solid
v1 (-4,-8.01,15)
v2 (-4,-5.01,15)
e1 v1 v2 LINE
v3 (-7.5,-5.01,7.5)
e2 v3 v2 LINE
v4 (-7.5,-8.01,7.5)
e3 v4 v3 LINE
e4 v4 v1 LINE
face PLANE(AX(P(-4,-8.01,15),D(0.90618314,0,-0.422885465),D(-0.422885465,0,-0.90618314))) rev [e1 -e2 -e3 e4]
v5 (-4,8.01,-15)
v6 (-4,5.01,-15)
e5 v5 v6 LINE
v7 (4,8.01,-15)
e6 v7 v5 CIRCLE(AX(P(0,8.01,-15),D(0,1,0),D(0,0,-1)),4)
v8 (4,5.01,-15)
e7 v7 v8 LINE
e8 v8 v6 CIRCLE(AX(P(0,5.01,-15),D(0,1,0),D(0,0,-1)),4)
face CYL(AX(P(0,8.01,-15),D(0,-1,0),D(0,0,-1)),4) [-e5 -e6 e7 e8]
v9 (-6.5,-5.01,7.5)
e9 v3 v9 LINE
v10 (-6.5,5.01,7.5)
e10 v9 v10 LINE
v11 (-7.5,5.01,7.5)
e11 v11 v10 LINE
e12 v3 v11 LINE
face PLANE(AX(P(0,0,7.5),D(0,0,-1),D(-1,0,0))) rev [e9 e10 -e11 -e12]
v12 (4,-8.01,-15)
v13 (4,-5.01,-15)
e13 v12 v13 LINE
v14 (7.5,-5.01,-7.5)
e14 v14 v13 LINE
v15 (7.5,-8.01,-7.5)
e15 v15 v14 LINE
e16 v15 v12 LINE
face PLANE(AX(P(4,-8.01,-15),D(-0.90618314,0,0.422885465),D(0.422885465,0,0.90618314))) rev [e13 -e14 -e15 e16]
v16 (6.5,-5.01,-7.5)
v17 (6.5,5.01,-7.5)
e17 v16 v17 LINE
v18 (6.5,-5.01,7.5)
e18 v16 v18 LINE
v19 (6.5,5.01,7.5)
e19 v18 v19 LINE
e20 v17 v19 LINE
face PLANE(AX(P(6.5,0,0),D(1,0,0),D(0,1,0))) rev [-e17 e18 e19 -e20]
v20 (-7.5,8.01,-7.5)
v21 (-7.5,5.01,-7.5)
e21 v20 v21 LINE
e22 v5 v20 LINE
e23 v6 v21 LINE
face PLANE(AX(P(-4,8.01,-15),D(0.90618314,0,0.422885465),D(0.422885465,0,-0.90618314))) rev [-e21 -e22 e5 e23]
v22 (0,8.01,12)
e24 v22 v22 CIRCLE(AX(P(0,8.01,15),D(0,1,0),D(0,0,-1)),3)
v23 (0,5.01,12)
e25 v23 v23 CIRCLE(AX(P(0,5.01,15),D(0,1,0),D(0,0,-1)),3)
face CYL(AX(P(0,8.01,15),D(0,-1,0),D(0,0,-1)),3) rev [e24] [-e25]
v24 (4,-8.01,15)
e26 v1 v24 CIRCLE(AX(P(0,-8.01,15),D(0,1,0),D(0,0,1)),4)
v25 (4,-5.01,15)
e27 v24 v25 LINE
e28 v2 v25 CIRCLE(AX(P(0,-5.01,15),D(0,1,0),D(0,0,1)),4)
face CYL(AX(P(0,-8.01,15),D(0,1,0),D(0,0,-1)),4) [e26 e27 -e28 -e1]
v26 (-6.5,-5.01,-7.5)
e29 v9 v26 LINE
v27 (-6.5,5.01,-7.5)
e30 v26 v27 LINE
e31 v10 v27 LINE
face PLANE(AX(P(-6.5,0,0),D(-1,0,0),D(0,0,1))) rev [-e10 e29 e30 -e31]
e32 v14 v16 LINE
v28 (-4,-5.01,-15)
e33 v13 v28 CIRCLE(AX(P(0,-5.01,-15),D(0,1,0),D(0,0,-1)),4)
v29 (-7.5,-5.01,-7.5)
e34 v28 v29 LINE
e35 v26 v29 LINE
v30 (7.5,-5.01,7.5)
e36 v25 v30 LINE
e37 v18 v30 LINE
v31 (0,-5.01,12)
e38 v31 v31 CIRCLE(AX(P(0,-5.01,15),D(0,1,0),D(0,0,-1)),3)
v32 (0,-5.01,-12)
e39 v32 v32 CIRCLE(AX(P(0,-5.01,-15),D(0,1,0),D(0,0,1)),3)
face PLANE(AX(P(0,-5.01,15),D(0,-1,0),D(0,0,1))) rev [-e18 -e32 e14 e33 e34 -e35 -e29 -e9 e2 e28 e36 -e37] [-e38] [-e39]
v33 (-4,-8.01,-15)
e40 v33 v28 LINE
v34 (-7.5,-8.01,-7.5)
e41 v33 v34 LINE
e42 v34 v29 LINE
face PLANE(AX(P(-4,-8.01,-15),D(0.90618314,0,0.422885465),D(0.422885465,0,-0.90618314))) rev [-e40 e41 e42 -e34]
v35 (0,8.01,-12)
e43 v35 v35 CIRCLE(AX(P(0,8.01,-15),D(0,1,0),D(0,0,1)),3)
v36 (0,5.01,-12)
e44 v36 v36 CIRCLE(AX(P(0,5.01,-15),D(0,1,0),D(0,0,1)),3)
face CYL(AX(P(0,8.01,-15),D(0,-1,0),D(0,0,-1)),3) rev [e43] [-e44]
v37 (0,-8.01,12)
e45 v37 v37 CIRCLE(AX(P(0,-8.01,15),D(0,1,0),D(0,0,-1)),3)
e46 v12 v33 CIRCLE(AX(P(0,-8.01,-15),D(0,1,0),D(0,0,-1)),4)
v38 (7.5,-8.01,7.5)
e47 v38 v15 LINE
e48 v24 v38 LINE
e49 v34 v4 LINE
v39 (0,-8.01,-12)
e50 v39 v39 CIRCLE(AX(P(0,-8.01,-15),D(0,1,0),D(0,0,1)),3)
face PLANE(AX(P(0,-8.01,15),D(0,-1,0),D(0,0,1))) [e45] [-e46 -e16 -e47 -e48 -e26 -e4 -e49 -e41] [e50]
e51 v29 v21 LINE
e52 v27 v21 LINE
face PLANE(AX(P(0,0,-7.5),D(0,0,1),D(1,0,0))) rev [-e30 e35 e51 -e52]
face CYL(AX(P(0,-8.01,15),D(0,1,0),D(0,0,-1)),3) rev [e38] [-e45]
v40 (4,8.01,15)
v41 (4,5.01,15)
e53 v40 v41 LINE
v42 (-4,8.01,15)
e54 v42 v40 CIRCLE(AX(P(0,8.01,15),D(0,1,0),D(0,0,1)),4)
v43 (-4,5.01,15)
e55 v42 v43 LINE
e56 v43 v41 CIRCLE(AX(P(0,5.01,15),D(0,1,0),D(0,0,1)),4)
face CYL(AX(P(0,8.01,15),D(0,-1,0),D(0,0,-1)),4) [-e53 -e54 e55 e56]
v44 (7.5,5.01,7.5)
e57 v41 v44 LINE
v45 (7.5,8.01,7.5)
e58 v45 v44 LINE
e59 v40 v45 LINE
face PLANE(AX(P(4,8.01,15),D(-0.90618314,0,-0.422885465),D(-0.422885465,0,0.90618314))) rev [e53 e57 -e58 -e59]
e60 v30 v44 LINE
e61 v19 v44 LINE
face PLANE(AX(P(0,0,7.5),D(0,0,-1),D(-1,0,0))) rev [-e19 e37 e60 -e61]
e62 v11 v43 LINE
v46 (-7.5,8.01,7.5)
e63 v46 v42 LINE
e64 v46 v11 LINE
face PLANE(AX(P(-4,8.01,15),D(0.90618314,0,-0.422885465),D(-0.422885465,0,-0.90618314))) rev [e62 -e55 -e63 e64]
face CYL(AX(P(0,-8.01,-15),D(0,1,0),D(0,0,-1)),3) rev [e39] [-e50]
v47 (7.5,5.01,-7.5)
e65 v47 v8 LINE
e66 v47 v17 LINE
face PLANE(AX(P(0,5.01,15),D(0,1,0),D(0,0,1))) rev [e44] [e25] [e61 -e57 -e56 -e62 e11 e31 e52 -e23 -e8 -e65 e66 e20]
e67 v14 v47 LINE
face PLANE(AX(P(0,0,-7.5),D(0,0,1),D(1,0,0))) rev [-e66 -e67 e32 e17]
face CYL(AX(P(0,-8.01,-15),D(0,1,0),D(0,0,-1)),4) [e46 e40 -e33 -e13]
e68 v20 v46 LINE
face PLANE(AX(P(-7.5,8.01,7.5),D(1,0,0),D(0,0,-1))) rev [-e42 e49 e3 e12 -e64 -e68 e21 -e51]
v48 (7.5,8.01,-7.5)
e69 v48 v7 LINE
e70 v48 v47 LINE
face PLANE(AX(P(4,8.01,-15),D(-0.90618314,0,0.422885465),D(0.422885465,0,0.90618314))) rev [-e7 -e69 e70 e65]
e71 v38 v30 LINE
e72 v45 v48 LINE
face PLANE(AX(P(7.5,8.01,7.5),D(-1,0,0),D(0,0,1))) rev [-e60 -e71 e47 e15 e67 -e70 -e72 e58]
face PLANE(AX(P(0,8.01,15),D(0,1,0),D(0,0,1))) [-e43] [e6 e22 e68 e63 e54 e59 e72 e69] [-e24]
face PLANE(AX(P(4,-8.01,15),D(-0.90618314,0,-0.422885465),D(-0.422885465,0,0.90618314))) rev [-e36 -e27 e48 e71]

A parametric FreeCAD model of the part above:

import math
import FreeCAD as App
import Part
import Sketcher
Q = App.Units.Quantity


def add_polygon(sketch, points):
    """Adds a closed chain of lines whose ends are joined by coincident constraints."""
    first, n = sketch.GeometryCount, len(points)
    for a, b in zip(points, points[1:] + points[:1]):
        sketch.addGeometry(Part.LineSegment(App.Vector(*a, 0), App.Vector(*b, 0)), False)
    for i in range(n):
        sketch.addConstraint(Sketcher.Constraint("Coincident", first + i, 2, first + (i + 1) % n, 1))

doc = App.newDocument("Part")
body = doc.addObject("PartDesign::Body", "Body")

sketch1 = body.newObject("Sketcher::SketchObject", "Sketch")
sketch1.AttachmentSupport = (doc.getObject("XZ_Plane"), [""])
sketch1.MapMode = "FlatFace"
sketch1.AttachmentOffset = App.Placement(App.Vector(0, 0, -5.01), App.Rotation())
sketch1.addGeometry([
    Part.LineSegment(App.Vector(-7.5, -7.5, 0), App.Vector(-7.5, 7.5, 0)),
    Part.LineSegment(App.Vector(-7.5, 7.5, 0), App.Vector(-4, 15, 0)),
    Part.ArcOfCircle(Part.Circle(App.Vector(0, 15, 0), App.Vector(0, 0, 1), 4), math.radians(0), math.radians(180)),
    Part.LineSegment(App.Vector(4, 15, 0), App.Vector(7.5, 7.5, 0)),
    Part.LineSegment(App.Vector(7.5, 7.5, 0), App.Vector(7.5, -7.5, 0)),
    Part.LineSegment(App.Vector(7.5, -7.5, 0), App.Vector(4, -15, 0)),
    Part.ArcOfCircle(Part.Circle(App.Vector(0, -15, 0), App.Vector(0, 0, 1), 4), math.radians(180), math.radians(360)),
    Part.LineSegment(App.Vector(-4, -15, 0), App.Vector(-7.5, -7.5, 0)),
    Part.Circle(App.Vector(0, 15, 0), App.Vector(0, 0, 1), 3),
    Part.Circle(App.Vector(0, -15, 0), App.Vector(0, 0, 1), 3),
], False)
sketch1.addConstraint([
    Sketcher.Constraint("Coincident", 0, 2, 1, 1),
    Sketcher.Constraint("Coincident", 1, 2, 2, 2),
    Sketcher.Constraint("Coincident", 2, 1, 3, 1),
    Sketcher.Constraint("Coincident", 3, 2, 4, 1),
    Sketcher.Constraint("Coincident", 4, 2, 5, 1),
    Sketcher.Constraint("Coincident", 5, 2, 6, 2),
    Sketcher.Constraint("Coincident", 6, 1, 7, 1),
    Sketcher.Constraint("Coincident", 7, 2, 0, 1),
    Sketcher.Constraint("Vertical", 0),
    Sketcher.Constraint("Vertical", 4),
    Sketcher.Constraint("Coincident", 8, 3, 2, 3),
    Sketcher.Constraint("Coincident", 9, 3, 6, 3),
    Sketcher.Constraint("Equal", 2, 6),
    Sketcher.Constraint("Equal", 8, 9),
    Sketcher.Constraint("Symmetric", 2, 3, 6, 3, -1, 1),
    Sketcher.Constraint("Symmetric", 0, 2, 4, 2, -1, 1),
    Sketcher.Constraint("Symmetric", 1, 2, 2, 1, -2),
    Sketcher.Constraint("Parallel", 1, 5),
    Sketcher.Constraint("Parallel", 3, 7),
    Sketcher.Constraint("Horizontal", 8, 3, 1, 2),
    Sketcher.Constraint("Horizontal", 0, 2, 3, 2),
    Sketcher.Constraint("Horizontal", 5, 2, 6, 1),
    Sketcher.Constraint("Diameter", 8, Q("6 mm")),
    Sketcher.Constraint("Radius", 2, Q("4 mm")),
    Sketcher.Constraint("DistanceY", 0, 1, 0, 2, Q("15 mm")),
    Sketcher.Constraint("DistanceY", -1, 1, 2, 3, Q("15 mm")),
    Sketcher.Constraint("DistanceX", 0, 2, 3, 2, Q("15 mm")),
])
pad1 = body.newObject("PartDesign::Pad", "Pad")
pad1.Profile = sketch1
pad1.Length = 3
pad1.Reversed = True

sketch2 = body.newObject("Sketcher::SketchObject", "Sketch001")
sketch2.AttachmentSupport = (doc.getObject("XZ_Plane"), [""])
sketch2.MapMode = "FlatFace"
add_polygon(sketch2, [(6.5, -7.5), (6.5, 7.5), (7.5, 7.5), (7.5, -7.5)])
sketch2.addConstraint([
    Sketcher.Constraint("Vertical", 0),
    Sketcher.Constraint("Horizontal", 1),
    Sketcher.Constraint("Vertical", 2),
    Sketcher.Constraint("Horizontal", 3),
    Sketcher.Constraint("DistanceX", 1, 1, 1, 2, Q("1 mm")),
    Sketcher.Constraint("DistanceY", 0, 1, 0, 2, Q("15 mm")),
    Sketcher.Constraint("DistanceX", -1, 1, 0, 2, Q("6.5 mm")),
    Sketcher.Constraint("DistanceY", -1, 1, 0, 2, Q("7.5 mm")),
])

sketch3 = body.newObject("Sketcher::SketchObject", "Sketch002")
sketch3.AttachmentSupport = (doc.getObject("XZ_Plane"), [""])
sketch3.MapMode = "FlatFace"
sketch3.AttachmentOffset = App.Placement(App.Vector(0, 0, -5.01), App.Rotation())
add_polygon(sketch3, [(6.5, -7.5), (6.5, 7.5), (7.5, 7.5), (7.5, -7.5)])
sketch3.addConstraint([
    Sketcher.Constraint("Vertical", 0),
    Sketcher.Constraint("Horizontal", 1),
    Sketcher.Constraint("Vertical", 2),
    Sketcher.Constraint("Horizontal", 3),
    Sketcher.Constraint("DistanceX", 1, 1, 1, 2, Q("1 mm")),
    Sketcher.Constraint("DistanceY", 0, 1, 0, 2, Q("15 mm")),
    Sketcher.Constraint("DistanceX", -1, 1, 0, 2, Q("6.5 mm")),
    Sketcher.Constraint("DistanceY", -1, 1, 0, 2, Q("7.5 mm")),
])

additiveloft = body.newObject("PartDesign::AdditiveLoft", "AdditiveLoft")
additiveloft.Profile = sketch2
additiveloft.Sections = [sketch3]

sketch4 = body.newObject("Sketcher::SketchObject", "Sketch003")
sketch4.AttachmentSupport = (doc.getObject("XZ_Plane"), [""])
sketch4.MapMode = "FlatFace"
add_polygon(sketch4, [(-7.5, -7.5), (-7.5, 7.5), (-6.5, 7.5), (-6.5, -7.5)])
sketch4.addConstraint([
    Sketcher.Constraint("Vertical", 0),
    Sketcher.Constraint("Horizontal", 1),
    Sketcher.Constraint("Vertical", 2),
    Sketcher.Constraint("Horizontal", 3),
    Sketcher.Constraint("DistanceX", 1, 1, 1, 2, Q("1 mm")),
    Sketcher.Constraint("DistanceY", 0, 1, 0, 2, Q("15 mm")),
    Sketcher.Constraint("DistanceX", 0, 2, -1, 1, Q("7.5 mm")),
    Sketcher.Constraint("DistanceY", -1, 1, 0, 2, Q("7.5 mm")),
])

sketch5 = body.newObject("Sketcher::SketchObject", "Sketch004")
sketch5.AttachmentSupport = (doc.getObject("XZ_Plane"), [""])
sketch5.MapMode = "FlatFace"
sketch5.AttachmentOffset = App.Placement(App.Vector(0, 0, -5.01), App.Rotation())
add_polygon(sketch5, [(-7.5, -7.5), (-7.5, 7.5), (-6.5, 7.5), (-6.5, -7.5)])
sketch5.addConstraint([
    Sketcher.Constraint("Vertical", 0),
    Sketcher.Constraint("Horizontal", 1),
    Sketcher.Constraint("Vertical", 2),
    Sketcher.Constraint("Horizontal", 3),
    Sketcher.Constraint("DistanceX", 1, 1, 1, 2, Q("1 mm")),
    Sketcher.Constraint("DistanceY", 0, 1, 0, 2, Q("15 mm")),
    Sketcher.Constraint("DistanceX", 0, 2, -1, 1, Q("7.5 mm")),
    Sketcher.Constraint("DistanceY", -1, 1, 0, 2, Q("7.5 mm")),
])

additiveloft2 = body.newObject("PartDesign::AdditiveLoft", "AdditiveLoft001")
additiveloft2.Profile = sketch4
additiveloft2.Sections = [sketch5]
doc.recompute()

mirrored = body.newObject("PartDesign::Mirrored", "Mirrored")
mirrored.Originals = [pad1, additiveloft, additiveloft2]
mirrored.MirrorPlane = (doc.getObject("XZ_Plane"), [""])
body.Tip = mirrored

doc.recompute()
